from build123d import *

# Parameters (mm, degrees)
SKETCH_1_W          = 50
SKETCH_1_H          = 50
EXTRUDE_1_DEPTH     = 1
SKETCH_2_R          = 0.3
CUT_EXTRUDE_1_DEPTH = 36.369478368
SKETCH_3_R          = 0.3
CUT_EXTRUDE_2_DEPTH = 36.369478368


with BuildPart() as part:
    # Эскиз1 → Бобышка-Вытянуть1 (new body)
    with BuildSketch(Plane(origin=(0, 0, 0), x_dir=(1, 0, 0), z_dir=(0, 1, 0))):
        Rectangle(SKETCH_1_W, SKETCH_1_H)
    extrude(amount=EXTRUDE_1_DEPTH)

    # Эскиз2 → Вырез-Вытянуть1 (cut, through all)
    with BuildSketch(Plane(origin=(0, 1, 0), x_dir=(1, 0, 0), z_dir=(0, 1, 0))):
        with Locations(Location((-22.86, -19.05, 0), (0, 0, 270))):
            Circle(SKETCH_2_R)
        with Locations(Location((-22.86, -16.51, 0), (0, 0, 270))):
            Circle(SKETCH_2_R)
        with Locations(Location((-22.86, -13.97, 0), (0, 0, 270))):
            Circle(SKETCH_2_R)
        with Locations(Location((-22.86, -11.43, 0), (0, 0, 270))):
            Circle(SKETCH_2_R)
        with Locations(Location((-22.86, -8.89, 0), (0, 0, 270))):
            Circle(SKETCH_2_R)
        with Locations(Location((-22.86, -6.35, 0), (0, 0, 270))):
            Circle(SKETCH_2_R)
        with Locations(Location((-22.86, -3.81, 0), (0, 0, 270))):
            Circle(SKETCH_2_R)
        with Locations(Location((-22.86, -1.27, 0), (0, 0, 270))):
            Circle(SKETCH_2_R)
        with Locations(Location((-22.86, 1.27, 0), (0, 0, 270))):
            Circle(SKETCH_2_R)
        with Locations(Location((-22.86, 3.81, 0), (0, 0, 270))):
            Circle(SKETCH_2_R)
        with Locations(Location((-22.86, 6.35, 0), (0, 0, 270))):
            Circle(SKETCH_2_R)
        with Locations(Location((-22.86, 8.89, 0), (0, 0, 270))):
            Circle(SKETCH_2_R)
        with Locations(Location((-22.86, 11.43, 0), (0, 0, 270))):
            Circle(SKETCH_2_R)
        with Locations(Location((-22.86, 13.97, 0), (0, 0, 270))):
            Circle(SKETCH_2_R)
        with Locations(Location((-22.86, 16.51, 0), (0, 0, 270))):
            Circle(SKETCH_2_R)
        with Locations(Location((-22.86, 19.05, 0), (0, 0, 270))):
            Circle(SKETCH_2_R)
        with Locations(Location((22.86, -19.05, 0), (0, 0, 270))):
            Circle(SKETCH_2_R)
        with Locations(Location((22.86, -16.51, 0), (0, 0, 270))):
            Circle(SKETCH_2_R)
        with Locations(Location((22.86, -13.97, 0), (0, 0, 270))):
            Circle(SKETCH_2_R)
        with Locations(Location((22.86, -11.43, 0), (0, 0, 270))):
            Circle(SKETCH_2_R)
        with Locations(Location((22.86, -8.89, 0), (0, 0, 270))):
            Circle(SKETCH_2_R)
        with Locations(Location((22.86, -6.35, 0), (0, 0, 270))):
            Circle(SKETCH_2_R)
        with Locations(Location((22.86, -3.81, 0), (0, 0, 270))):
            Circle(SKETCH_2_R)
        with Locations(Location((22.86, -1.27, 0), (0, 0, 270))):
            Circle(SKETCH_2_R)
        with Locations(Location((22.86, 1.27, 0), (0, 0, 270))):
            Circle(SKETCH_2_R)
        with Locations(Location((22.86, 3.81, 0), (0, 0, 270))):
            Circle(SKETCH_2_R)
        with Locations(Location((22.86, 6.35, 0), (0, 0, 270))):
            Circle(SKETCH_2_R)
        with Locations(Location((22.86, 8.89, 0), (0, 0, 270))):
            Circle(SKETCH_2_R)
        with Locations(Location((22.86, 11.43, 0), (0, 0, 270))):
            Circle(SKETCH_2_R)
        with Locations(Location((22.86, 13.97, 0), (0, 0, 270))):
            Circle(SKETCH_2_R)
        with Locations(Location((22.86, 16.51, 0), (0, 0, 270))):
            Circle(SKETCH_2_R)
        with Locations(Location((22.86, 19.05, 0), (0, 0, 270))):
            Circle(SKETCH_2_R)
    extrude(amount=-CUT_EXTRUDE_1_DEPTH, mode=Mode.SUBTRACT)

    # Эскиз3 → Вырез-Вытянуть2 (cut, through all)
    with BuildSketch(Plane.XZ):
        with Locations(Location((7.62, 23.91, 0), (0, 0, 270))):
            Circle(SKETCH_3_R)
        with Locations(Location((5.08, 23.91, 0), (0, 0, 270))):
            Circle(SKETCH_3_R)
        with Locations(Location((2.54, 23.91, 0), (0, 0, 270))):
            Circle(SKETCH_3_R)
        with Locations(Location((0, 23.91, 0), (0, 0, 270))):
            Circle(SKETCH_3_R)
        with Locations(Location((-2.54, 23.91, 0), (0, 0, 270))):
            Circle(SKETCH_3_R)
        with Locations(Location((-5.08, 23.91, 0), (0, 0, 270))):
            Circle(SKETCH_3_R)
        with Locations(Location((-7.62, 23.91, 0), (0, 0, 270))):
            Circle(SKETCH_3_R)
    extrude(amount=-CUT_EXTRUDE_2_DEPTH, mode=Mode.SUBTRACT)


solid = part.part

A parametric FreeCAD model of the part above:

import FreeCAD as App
import Part
import Sketcher

doc = App.newDocument("Part")
params = doc.addObject("Spreadsheet::Sheet", "Params")
for row, (alias, value) in enumerate([
    ("sketch1_width", "50 mm"),
    ("pad1_length", "1 mm"),
    ("sketch2_diameter", "0.6 mm"),
    ("sketch3_diameter", "0.6 mm"),
], start=1):
    params.set(f"A{row}", alias)
    params.set(f"B{row}", "=" + value)
    params.setAlias(f"B{row}", alias)

body = doc.addObject("PartDesign::Body", "Body")

# Sketch on XZ plane
sketch1 = doc.addObject("Sketcher::SketchObject", "Sketch")
body.addObject(sketch1)
sketch1.AttachmentSupport = (doc.XZ_Plane, [""])
sketch1.MapMode = "FlatFace"
sketch1.addGeometry(Part.LineSegment(App.Vector(-25, -25, 0), App.Vector(-25, 25, 0)), False)
sketch1.addGeometry(Part.LineSegment(App.Vector(-25, 25, 0), App.Vector(25, 25, 0)), False)
sketch1.addGeometry(Part.LineSegment(App.Vector(25, 25, 0), App.Vector(25, -25, 0)), False)
sketch1.addGeometry(Part.LineSegment(App.Vector(25, -25, 0), App.Vector(-25, -25, 0)), False)
sketch1.addConstraint(Sketcher.Constraint("Coincident", 0, 2, 1, 1))
sketch1.addConstraint(Sketcher.Constraint("Coincident", 1, 2, 2, 1))
sketch1.addConstraint(Sketcher.Constraint("Coincident", 2, 2, 3, 1))
sketch1.addConstraint(Sketcher.Constraint("Coincident", 3, 2, 0, 1))
sketch1.addConstraint(Sketcher.Constraint("Vertical", 0))
sketch1.addConstraint(Sketcher.Constraint("Horizontal", 1))
sketch1.addConstraint(Sketcher.Constraint("Vertical", 2))
sketch1.addConstraint(Sketcher.Constraint("Horizontal", 3))
sketch1.addConstraint(Sketcher.Constraint("Symmetric", 0, 2, 2, 2, -1, 1))
sketch1.addConstraint(Sketcher.Constraint("Equal", 3, 0))
sketch1.addConstraint(Sketcher.Constraint("DistanceX", 1, 1, 1, 2, 50.0))
sketch1.setExpression("Constraints[10]", "Params.sketch1_width")
pad1 = doc.addObject("PartDesign::Pad", "Pad")
body.addObject(pad1)
pad1.Profile = sketch1
pad1.setExpression("Length", "Params.pad1_length")
pad1.Reversed = True

# Sketch on XZ plane
sketch2 = doc.addObject("Sketcher::SketchObject", "Sketch001")
body.addObject(sketch2)
sketch2.AttachmentSupport = (doc.XZ_Plane, [""])
sketch2.MapMode = "FlatFace"
sketch2.AttachmentOffset = App.Placement(App.Vector(0, 0, -1), App.Rotation())
sketch2.addGeometry(Part.Circle(App.Vector(-22.86, 19.05, 0), App.Vector(0, 0, 1), 0.3), False)
sketch2.addGeometry(Part.Circle(App.Vector(-22.86, 16.51, 0), App.Vector(0, 0, 1), 0.3), False)
sketch2.addGeometry(Part.Circle(App.Vector(-22.86, 13.97, 0), App.Vector(0, 0, 1), 0.3), False)
sketch2.addGeometry(Part.Circle(App.Vector(-22.86, 11.43, 0), App.Vector(0, 0, 1), 0.3), False)
sketch2.addGeometry(Part.Circle(App.Vector(-22.86, 8.89, 0), App.Vector(0, 0, 1), 0.3), False)
sketch2.addGeometry(Part.Circle(App.Vector(-22.86, 6.35, 0), App.Vector(0, 0, 1), 0.3), False)
sketch2.addGeometry(Part.Circle(App.Vector(-22.86, 3.81, 0), App.Vector(0, 0, 1), 0.3), False)
sketch2.addGeometry(Part.Circle(App.Vector(-22.86, 1.27, 0), App.Vector(0, 0, 1), 0.3), False)
sketch2.addGeometry(Part.Circle(App.Vector(-22.86, -1.27, 0), App.Vector(0, 0, 1), 0.3), False)
sketch2.addGeometry(Part.Circle(App.Vector(-22.86, -3.81, 0), App.Vector(0, 0, 1), 0.3), False)
sketch2.addGeometry(Part.Circle(App.Vector(-22.86, -6.35, 0), App.Vector(0, 0, 1), 0.3), False)
sketch2.addGeometry(Part.Circle(App.Vector(-22.86, -8.89, 0), App.Vector(0, 0, 1), 0.3), False)
sketch2.addGeometry(Part.Circle(App.Vector(-22.86, -11.43, 0), App.Vector(0, 0, 1), 0.3), False)
sketch2.addGeometry(Part.Circle(App.Vector(-22.86, -13.97, 0), App.Vector(0, 0, 1), 0.3), False)
sketch2.addGeometry(Part.Circle(App.Vector(-22.86, -16.51, 0), App.Vector(0, 0, 1), 0.3), False)
sketch2.addGeometry(Part.Circle(App.Vector(-22.86, -19.05, 0), App.Vector(0, 0, 1), 0.3), False)
sketch2.addGeometry(Part.Circle(App.Vector(22.86, 19.05, 0), App.Vector(0, 0, 1), 0.3), False)
sketch2.addGeometry(Part.Circle(App.Vector(22.86, 16.51, 0), App.Vector(0, 0, 1), 0.3), False)
sketch2.addGeometry(Part.Circle(App.Vector(22.86, 13.97, 0), App.Vector(0, 0, 1), 0.3), False)
sketch2.addGeometry(Part.Circle(App.Vector(22.86, 11.43, 0), App.Vector(0, 0, 1), 0.3), False)
sketch2.addGeometry(Part.Circle(App.Vector(22.86, 8.89, 0), App.Vector(0, 0, 1), 0.3), False)
sketch2.addGeometry(Part.Circle(App.Vector(22.86, 6.35, 0), App.Vector(0, 0, 1), 0.3), False)
sketch2.addGeometry(Part.Circle(App.Vector(22.86, 3.81, 0), App.Vector(0, 0, 1), 0.3), False)
sketch2.addGeometry(Part.Circle(App.Vector(22.86, 1.27, 0), App.Vector(0, 0, 1), 0.3), False)
sketch2.addGeometry(Part.Circle(App.Vector(22.86, -1.27, 0), App.Vector(0, 0, 1), 0.3), False)
sketch2.addGeometry(Part.Circle(App.Vector(22.86, -3.81, 0), App.Vector(0, 0, 1), 0.3), False)
sketch2.addGeometry(Part.Circle(App.Vector(22.86, -6.35, 0), App.Vector(0, 0, 1), 0.3), False)
sketch2.addGeometry(Part.Circle(App.Vector(22.86, -8.89, 0), App.Vector(0, 0, 1), 0.3), False)
sketch2.addGeometry(Part.Circle(App.Vector(22.86, -11.43, 0), App.Vector(0, 0, 1), 0.3), False)
sketch2.addGeometry(Part.Circle(App.Vector(22.86, -13.97, 0), App.Vector(0, 0, 1), 0.3), False)
sketch2.addGeometry(Part.Circle(App.Vector(22.86, -16.51, 0), App.Vector(0, 0, 1), 0.3), False)
sketch2.addGeometry(Part.Circle(App.Vector(22.86, -19.05, 0), App.Vector(0, 0, 1), 0.3), False)
sketch2.addConstraint(Sketcher.Constraint("Equal", 0, 1))
sketch2.addConstraint(Sketcher.Constraint("Equal", 1, 2))
sketch2.addConstraint(Sketcher.Constraint("Equal", 2, 3))
sketch2.addConstraint(Sketcher.Constraint("Equal", 3, 4))
sketch2.addConstraint(Sketcher.Constraint("Equal", 4, 5))
sketch2.addConstraint(Sketcher.Constraint("Equal", 5, 6))
sketch2.addConstraint(Sketcher.Constraint("Equal", 6, 7))
sketch2.addConstraint(Sketcher.Constraint("Equal", 7, 8))
sketch2.addConstraint(Sketcher.Constraint("Equal", 8, 9))
sketch2.addConstraint(Sketcher.Constraint("Equal", 9, 10))
sketch2.addConstraint(Sketcher.Constraint("Equal", 10, 11))
sketch2.addConstraint(Sketcher.Constraint("Equal", 11, 12))
sketch2.addConstraint(Sketcher.Constraint("Equal", 12, 13))
sketch2.addConstraint(Sketcher.Constraint("Equal", 13, 14))
sketch2.addConstraint(Sketcher.Constraint("Equal", 14, 15))
sketch2.addConstraint(Sketcher.Constraint("Equal", 15, 16))
sketch2.addConstraint(Sketcher.Constraint("Equal", 16, 17))
sketch2.addConstraint(Sketcher.Constraint("Equal", 17, 18))
sketch2.addConstraint(Sketcher.Constraint("Equal", 18, 19))
sketch2.addConstraint(Sketcher.Constraint("Equal", 19, 20))
sketch2.addConstraint(Sketcher.Constraint("Equal", 20, 21))
sketch2.addConstraint(Sketcher.Constraint("Equal", 21, 22))
sketch2.addConstraint(Sketcher.Constraint("Equal", 22, 23))
sketch2.addConstraint(Sketcher.Constraint("Equal", 23, 24))
sketch2.addConstraint(Sketcher.Constraint("Equal", 24, 25))
sketch2.addConstraint(Sketcher.Constraint("Equal", 25, 26))
sketch2.addConstraint(Sketcher.Constraint("Equal", 26, 27))
sketch2.addConstraint(Sketcher.Constraint("Equal", 27, 28))
sketch2.addConstraint(Sketcher.Constraint("Equal", 28, 29))
sketch2.addConstraint(Sketcher.Constraint("Equal", 29, 30))
sketch2.addConstraint(Sketcher.Constraint("Equal", 30, 31))
sketch2.addConstraint(Sketcher.Constraint("Symmetric", 15, 3, 16, 3, -1, 1))
sketch2.addConstraint(Sketcher.Constraint("Symmetric", 14, 3, 17, 3, -1, 1))
sketch2.addConstraint(Sketcher.Constraint("Symmetric", 13, 3, 18, 3, -1, 1))
sketch2.addConstraint(Sketcher.Constraint("Symmetric", 12, 3, 19, 3, -1, 1))
sketch2.addConstraint(Sketcher.Constraint("Symmetric", 11, 3, 20, 3, -1, 1))
sketch2.addConstraint(Sketcher.Constraint("Symmetric", 10, 3, 21, 3, -1, 1))
sketch2.addConstraint(Sketcher.Constraint("Symmetric", 9, 3, 22, 3, -1, 1))
sketch2.addConstraint(Sketcher.Constraint("Symmetric", 8, 3, 23, 3, -1, 1))
sketch2.addConstraint(Sketcher.Constraint("Symmetric", 7, 3, 24, 3, -1, 1))
sketch2.addConstraint(Sketcher.Constraint("Symmetric", 6, 3, 25, 3, -1, 1))
sketch2.addConstraint(Sketcher.Constraint("Symmetric", 5, 3, 26, 3, -1, 1))
sketch2.addConstraint(Sketcher.Constraint("Symmetric", 4, 3, 27, 3, -1, 1))
sketch2.addConstraint(Sketcher.Constraint("Symmetric", 3, 3, 28, 3, -1, 1))
sketch2.addConstraint(Sketcher.Constraint("Symmetric", 2, 3, 29, 3, -1, 1))
sketch2.addConstraint(Sketcher.Constraint("Symmetric", 1, 3, 30, 3, -1, 1))
sketch2.addConstraint(Sketcher.Constraint("Symmetric", 0, 3, 31, 3, -1, 1))
sketch2.addConstraint(Sketcher.Constraint("Symmetric", 0, 3, 16, 3, -2))
sketch2.addConstraint(Sketcher.Constraint("Symmetric", 1, 3, 17, 3, -2))
sketch2.addConstraint(Sketcher.Constraint("Symmetric", 2, 3, 18, 3, -2))
sketch2.addConstraint(Sketcher.Constraint("Symmetric", 3, 3, 19, 3, -2))
sketch2.addConstraint(Sketcher.Constraint("Symmetric", 4, 3, 20, 3, -2))
sketch2.addConstraint(Sketcher.Constraint("Symmetric", 5, 3, 21, 3, -2))
sketch2.addConstraint(Sketcher.Constraint("Symmetric", 6, 3, 22, 3, -2))
sketch2.addConstraint(Sketcher.Constraint("Symmetric", 7, 3, 23, 3, -2))
sketch2.addConstraint(Sketcher.Constraint("Vertical", 0, 3, 1, 3))
sketch2.addConstraint(Sketcher.Constraint("Vertical", 1, 3, 2, 3))
sketch2.addConstraint(Sketcher.Constraint("Vertical", 2, 3, 3, 3))
sketch2.addConstraint(Sketcher.Constraint("Vertical", 3, 3, 4, 3))
sketch2.addConstraint(Sketcher.Constraint("Vertical", 4, 3, 5, 3))
sketch2.addConstraint(Sketcher.Constraint("Vertical", 5, 3, 6, 3))
sketch2.addConstraint(Sketcher.Constraint("Vertical", 6, 3, 7, 3))
sketch2.addConstraint(Sketcher.Constraint("Diameter", 0, 0.6))
sketch2.addConstraint(Sketcher.Constraint("DistanceY", 5, 3, 0, 3, 12.7))
sketch2.addConstraint(Sketcher.Constraint("DistanceY", 6, 3, 1, 3, 12.7))
sketch2.addConstraint(Sketcher.Constraint("DistanceY", 7, 3, 2, 3, 12.7))
sketch2.addConstraint(Sketcher.Constraint("DistanceY", 8, 3, 3, 3, 12.7))
sketch2.addConstraint(Sketcher.Constraint("DistanceY", 9, 3, 4, 3, 12.7))
sketch2.addConstraint(Sketcher.Constraint("DistanceY", 10, 3, 5, 3, 12.7))
sketch2.addConstraint(Sketcher.Constraint("DistanceX", 0, 3, -1, 1, 22.86))
sketch2.addConstraint(Sketcher.Constraint("DistanceY", -1, 1, 1, 3, 16.51))
sketch2.addConstraint(Sketcher.Constraint("DistanceY", -1, 1, 2, 3, 13.97))
sketch2.setExpression("Constraints[62]", "Params.sketch2_diameter")
pocket1 = doc.addObject("PartDesign::Pocket", "Pocket")
body.addObject(pocket1)
pocket1.Profile = sketch2
pocket1.Type = "ThroughAll"
pocket1.Reversed = True

# Sketch on XZ plane
sketch3 = doc.addObject("Sketcher::SketchObject", "Sketch002")
body.addObject(sketch3)
sketch3.AttachmentSupport = (doc.XZ_Plane, [""])
sketch3.MapMode = "FlatFace"
sketch3.addGeometry(Part.Circle(App.Vector(7.62, 23.91, 0), App.Vector(0, 0, 1), 0.3), False)
sketch3.addGeometry(Part.Circle(App.Vector(5.08, 23.91, 0), App.Vector(0, 0, 1), 0.3), False)
sketch3.addGeometry(Part.Circle(App.Vector(2.54, 23.91, 0), App.Vector(0, 0, 1), 0.3), False)
sketch3.addGeometry(Part.Circle(App.Vector(0, 23.91, 0), App.Vector(0, 0, 1), 0.3), False)
sketch3.addGeometry(Part.Circle(App.Vector(-2.54, 23.91, 0), App.Vector(0, 0, 1), 0.3), False)
sketch3.addGeometry(Part.Circle(App.Vector(-5.08, 23.91, 0), App.Vector(0, 0, 1), 0.3), False)
sketch3.addGeometry(Part.Circle(App.Vector(-7.62, 23.91, 0), App.Vector(0, 0, 1), 0.3), False)
sketch3.addConstraint(Sketcher.Constraint("Equal", 0, 1))
sketch3.addConstraint(Sketcher.Constraint("Equal", 1, 2))
sketch3.addConstraint(Sketcher.Constraint("Equal", 2, 3))
sketch3.addConstraint(Sketcher.Constraint("Equal", 3, 4))
sketch3.addConstraint(Sketcher.Constraint("Equal", 4, 5))
sketch3.addConstraint(Sketcher.Constraint("Equal", 5, 6))
sketch3.addConstraint(Sketcher.Constraint("Symmetric", 2, 3, 4, 3, -2))
sketch3.addConstraint(Sketcher.Constraint("Symmetric", 1, 3, 5, 3, -2))
sketch3.addConstraint(Sketcher.Constraint("Symmetric", 0, 3, 6, 3, -2))
sketch3.addConstraint(Sketcher.Constraint("PointOnObject", 3, 3, -2))
sketch3.addConstraint(Sketcher.Constraint("Horizontal", 0, 3, 1, 3))
sketch3.addConstraint(Sketcher.Constraint("Horizontal", 1, 3, 2, 3))
sketch3.addConstraint(Sketcher.Constraint("Horizontal", 2, 3, 3, 3))
sketch3.addConstraint(Sketcher.Constraint("Diameter", 0, 0.6))
sketch3.addConstraint(Sketcher.Constraint("DistanceX", 5, 3, 0, 3, 12.7))
sketch3.addConstraint(Sketcher.Constraint("DistanceX", -1, 1, 0, 3, 7.62))
sketch3.addConstraint(Sketcher.Constraint("DistanceY", -1, 1, 0, 3, 23.91))
sketch3.addConstraint(Sketcher.Constraint("DistanceX", -1, 1, 2, 3, 2.54))
sketch3.setExpression("Constraints[13]", "Params.sketch3_diameter")
pocket2 = doc.addObject("PartDesign::Pocket", "Pocket001")
body.addObject(pocket2)
pocket2.Profile = sketch3
pocket2.Type = "ThroughAll"

doc.recompute()
